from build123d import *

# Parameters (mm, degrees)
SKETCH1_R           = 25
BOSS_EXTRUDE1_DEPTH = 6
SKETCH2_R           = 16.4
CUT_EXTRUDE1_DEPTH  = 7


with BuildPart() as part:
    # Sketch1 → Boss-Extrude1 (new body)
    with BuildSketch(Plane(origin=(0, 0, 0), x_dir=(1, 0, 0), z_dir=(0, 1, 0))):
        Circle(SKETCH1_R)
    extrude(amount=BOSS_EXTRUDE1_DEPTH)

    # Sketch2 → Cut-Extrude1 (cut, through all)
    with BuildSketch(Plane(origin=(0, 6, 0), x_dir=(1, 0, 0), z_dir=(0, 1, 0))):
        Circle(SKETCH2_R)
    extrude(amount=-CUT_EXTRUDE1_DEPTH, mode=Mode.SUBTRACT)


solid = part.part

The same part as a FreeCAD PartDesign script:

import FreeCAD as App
import Part
import Sketcher

V = App.Vector

doc = App.newDocument("Part")
body = doc.addObject("PartDesign::Body", "Body")

# Sketch on XZ plane
sketch1 = body.newObject("Sketcher::SketchObject", "Sketch")
sketch1.AttachmentSupport = (doc.getObject("XZ_Plane"), [""])
sketch1.MapMode = "FlatFace"
sketch1.addGeometry(Part.Circle(V(0, 0, 0), V(0, 0, 1), 25), False)
sketch1.addConstraint(Sketcher.Constraint("Coincident", 0, 3, -1, 1))
sketch1.addConstraint(Sketcher.Constraint("Diameter", 0, 50.0))
pad1 = body.newObject("PartDesign::Pad", "Pad")
pad1.Profile = sketch1
pad1.Length = 6
pad1.Reversed = True

# Sketch on XZ plane
sketch2 = body.newObject("Sketcher::SketchObject", "Sketch001")
sketch2.AttachmentSupport = (doc.getObject("XZ_Plane"), [""])
sketch2.MapMode = "FlatFace"
sketch2.AttachmentOffset = App.Placement(V(0, 0, -6), App.Rotation())
sketch2.addGeometry(Part.Circle(V(0, 0, 0), V(0, 0, 1), 16), False)
sketch2.addConstraint(Sketcher.Constraint("Coincident", 0, 3, -1, 1))
sketch2.addConstraint(Sketcher.Constraint("Diameter", 0, 32.8))
pocket1 = body.newObject("PartDesign::Pocket", "Pocket")
pocket1.Profile = sketch2
pocket1.Type = "ThroughAll"
pocket1.Reversed = True

doc.recompute()
